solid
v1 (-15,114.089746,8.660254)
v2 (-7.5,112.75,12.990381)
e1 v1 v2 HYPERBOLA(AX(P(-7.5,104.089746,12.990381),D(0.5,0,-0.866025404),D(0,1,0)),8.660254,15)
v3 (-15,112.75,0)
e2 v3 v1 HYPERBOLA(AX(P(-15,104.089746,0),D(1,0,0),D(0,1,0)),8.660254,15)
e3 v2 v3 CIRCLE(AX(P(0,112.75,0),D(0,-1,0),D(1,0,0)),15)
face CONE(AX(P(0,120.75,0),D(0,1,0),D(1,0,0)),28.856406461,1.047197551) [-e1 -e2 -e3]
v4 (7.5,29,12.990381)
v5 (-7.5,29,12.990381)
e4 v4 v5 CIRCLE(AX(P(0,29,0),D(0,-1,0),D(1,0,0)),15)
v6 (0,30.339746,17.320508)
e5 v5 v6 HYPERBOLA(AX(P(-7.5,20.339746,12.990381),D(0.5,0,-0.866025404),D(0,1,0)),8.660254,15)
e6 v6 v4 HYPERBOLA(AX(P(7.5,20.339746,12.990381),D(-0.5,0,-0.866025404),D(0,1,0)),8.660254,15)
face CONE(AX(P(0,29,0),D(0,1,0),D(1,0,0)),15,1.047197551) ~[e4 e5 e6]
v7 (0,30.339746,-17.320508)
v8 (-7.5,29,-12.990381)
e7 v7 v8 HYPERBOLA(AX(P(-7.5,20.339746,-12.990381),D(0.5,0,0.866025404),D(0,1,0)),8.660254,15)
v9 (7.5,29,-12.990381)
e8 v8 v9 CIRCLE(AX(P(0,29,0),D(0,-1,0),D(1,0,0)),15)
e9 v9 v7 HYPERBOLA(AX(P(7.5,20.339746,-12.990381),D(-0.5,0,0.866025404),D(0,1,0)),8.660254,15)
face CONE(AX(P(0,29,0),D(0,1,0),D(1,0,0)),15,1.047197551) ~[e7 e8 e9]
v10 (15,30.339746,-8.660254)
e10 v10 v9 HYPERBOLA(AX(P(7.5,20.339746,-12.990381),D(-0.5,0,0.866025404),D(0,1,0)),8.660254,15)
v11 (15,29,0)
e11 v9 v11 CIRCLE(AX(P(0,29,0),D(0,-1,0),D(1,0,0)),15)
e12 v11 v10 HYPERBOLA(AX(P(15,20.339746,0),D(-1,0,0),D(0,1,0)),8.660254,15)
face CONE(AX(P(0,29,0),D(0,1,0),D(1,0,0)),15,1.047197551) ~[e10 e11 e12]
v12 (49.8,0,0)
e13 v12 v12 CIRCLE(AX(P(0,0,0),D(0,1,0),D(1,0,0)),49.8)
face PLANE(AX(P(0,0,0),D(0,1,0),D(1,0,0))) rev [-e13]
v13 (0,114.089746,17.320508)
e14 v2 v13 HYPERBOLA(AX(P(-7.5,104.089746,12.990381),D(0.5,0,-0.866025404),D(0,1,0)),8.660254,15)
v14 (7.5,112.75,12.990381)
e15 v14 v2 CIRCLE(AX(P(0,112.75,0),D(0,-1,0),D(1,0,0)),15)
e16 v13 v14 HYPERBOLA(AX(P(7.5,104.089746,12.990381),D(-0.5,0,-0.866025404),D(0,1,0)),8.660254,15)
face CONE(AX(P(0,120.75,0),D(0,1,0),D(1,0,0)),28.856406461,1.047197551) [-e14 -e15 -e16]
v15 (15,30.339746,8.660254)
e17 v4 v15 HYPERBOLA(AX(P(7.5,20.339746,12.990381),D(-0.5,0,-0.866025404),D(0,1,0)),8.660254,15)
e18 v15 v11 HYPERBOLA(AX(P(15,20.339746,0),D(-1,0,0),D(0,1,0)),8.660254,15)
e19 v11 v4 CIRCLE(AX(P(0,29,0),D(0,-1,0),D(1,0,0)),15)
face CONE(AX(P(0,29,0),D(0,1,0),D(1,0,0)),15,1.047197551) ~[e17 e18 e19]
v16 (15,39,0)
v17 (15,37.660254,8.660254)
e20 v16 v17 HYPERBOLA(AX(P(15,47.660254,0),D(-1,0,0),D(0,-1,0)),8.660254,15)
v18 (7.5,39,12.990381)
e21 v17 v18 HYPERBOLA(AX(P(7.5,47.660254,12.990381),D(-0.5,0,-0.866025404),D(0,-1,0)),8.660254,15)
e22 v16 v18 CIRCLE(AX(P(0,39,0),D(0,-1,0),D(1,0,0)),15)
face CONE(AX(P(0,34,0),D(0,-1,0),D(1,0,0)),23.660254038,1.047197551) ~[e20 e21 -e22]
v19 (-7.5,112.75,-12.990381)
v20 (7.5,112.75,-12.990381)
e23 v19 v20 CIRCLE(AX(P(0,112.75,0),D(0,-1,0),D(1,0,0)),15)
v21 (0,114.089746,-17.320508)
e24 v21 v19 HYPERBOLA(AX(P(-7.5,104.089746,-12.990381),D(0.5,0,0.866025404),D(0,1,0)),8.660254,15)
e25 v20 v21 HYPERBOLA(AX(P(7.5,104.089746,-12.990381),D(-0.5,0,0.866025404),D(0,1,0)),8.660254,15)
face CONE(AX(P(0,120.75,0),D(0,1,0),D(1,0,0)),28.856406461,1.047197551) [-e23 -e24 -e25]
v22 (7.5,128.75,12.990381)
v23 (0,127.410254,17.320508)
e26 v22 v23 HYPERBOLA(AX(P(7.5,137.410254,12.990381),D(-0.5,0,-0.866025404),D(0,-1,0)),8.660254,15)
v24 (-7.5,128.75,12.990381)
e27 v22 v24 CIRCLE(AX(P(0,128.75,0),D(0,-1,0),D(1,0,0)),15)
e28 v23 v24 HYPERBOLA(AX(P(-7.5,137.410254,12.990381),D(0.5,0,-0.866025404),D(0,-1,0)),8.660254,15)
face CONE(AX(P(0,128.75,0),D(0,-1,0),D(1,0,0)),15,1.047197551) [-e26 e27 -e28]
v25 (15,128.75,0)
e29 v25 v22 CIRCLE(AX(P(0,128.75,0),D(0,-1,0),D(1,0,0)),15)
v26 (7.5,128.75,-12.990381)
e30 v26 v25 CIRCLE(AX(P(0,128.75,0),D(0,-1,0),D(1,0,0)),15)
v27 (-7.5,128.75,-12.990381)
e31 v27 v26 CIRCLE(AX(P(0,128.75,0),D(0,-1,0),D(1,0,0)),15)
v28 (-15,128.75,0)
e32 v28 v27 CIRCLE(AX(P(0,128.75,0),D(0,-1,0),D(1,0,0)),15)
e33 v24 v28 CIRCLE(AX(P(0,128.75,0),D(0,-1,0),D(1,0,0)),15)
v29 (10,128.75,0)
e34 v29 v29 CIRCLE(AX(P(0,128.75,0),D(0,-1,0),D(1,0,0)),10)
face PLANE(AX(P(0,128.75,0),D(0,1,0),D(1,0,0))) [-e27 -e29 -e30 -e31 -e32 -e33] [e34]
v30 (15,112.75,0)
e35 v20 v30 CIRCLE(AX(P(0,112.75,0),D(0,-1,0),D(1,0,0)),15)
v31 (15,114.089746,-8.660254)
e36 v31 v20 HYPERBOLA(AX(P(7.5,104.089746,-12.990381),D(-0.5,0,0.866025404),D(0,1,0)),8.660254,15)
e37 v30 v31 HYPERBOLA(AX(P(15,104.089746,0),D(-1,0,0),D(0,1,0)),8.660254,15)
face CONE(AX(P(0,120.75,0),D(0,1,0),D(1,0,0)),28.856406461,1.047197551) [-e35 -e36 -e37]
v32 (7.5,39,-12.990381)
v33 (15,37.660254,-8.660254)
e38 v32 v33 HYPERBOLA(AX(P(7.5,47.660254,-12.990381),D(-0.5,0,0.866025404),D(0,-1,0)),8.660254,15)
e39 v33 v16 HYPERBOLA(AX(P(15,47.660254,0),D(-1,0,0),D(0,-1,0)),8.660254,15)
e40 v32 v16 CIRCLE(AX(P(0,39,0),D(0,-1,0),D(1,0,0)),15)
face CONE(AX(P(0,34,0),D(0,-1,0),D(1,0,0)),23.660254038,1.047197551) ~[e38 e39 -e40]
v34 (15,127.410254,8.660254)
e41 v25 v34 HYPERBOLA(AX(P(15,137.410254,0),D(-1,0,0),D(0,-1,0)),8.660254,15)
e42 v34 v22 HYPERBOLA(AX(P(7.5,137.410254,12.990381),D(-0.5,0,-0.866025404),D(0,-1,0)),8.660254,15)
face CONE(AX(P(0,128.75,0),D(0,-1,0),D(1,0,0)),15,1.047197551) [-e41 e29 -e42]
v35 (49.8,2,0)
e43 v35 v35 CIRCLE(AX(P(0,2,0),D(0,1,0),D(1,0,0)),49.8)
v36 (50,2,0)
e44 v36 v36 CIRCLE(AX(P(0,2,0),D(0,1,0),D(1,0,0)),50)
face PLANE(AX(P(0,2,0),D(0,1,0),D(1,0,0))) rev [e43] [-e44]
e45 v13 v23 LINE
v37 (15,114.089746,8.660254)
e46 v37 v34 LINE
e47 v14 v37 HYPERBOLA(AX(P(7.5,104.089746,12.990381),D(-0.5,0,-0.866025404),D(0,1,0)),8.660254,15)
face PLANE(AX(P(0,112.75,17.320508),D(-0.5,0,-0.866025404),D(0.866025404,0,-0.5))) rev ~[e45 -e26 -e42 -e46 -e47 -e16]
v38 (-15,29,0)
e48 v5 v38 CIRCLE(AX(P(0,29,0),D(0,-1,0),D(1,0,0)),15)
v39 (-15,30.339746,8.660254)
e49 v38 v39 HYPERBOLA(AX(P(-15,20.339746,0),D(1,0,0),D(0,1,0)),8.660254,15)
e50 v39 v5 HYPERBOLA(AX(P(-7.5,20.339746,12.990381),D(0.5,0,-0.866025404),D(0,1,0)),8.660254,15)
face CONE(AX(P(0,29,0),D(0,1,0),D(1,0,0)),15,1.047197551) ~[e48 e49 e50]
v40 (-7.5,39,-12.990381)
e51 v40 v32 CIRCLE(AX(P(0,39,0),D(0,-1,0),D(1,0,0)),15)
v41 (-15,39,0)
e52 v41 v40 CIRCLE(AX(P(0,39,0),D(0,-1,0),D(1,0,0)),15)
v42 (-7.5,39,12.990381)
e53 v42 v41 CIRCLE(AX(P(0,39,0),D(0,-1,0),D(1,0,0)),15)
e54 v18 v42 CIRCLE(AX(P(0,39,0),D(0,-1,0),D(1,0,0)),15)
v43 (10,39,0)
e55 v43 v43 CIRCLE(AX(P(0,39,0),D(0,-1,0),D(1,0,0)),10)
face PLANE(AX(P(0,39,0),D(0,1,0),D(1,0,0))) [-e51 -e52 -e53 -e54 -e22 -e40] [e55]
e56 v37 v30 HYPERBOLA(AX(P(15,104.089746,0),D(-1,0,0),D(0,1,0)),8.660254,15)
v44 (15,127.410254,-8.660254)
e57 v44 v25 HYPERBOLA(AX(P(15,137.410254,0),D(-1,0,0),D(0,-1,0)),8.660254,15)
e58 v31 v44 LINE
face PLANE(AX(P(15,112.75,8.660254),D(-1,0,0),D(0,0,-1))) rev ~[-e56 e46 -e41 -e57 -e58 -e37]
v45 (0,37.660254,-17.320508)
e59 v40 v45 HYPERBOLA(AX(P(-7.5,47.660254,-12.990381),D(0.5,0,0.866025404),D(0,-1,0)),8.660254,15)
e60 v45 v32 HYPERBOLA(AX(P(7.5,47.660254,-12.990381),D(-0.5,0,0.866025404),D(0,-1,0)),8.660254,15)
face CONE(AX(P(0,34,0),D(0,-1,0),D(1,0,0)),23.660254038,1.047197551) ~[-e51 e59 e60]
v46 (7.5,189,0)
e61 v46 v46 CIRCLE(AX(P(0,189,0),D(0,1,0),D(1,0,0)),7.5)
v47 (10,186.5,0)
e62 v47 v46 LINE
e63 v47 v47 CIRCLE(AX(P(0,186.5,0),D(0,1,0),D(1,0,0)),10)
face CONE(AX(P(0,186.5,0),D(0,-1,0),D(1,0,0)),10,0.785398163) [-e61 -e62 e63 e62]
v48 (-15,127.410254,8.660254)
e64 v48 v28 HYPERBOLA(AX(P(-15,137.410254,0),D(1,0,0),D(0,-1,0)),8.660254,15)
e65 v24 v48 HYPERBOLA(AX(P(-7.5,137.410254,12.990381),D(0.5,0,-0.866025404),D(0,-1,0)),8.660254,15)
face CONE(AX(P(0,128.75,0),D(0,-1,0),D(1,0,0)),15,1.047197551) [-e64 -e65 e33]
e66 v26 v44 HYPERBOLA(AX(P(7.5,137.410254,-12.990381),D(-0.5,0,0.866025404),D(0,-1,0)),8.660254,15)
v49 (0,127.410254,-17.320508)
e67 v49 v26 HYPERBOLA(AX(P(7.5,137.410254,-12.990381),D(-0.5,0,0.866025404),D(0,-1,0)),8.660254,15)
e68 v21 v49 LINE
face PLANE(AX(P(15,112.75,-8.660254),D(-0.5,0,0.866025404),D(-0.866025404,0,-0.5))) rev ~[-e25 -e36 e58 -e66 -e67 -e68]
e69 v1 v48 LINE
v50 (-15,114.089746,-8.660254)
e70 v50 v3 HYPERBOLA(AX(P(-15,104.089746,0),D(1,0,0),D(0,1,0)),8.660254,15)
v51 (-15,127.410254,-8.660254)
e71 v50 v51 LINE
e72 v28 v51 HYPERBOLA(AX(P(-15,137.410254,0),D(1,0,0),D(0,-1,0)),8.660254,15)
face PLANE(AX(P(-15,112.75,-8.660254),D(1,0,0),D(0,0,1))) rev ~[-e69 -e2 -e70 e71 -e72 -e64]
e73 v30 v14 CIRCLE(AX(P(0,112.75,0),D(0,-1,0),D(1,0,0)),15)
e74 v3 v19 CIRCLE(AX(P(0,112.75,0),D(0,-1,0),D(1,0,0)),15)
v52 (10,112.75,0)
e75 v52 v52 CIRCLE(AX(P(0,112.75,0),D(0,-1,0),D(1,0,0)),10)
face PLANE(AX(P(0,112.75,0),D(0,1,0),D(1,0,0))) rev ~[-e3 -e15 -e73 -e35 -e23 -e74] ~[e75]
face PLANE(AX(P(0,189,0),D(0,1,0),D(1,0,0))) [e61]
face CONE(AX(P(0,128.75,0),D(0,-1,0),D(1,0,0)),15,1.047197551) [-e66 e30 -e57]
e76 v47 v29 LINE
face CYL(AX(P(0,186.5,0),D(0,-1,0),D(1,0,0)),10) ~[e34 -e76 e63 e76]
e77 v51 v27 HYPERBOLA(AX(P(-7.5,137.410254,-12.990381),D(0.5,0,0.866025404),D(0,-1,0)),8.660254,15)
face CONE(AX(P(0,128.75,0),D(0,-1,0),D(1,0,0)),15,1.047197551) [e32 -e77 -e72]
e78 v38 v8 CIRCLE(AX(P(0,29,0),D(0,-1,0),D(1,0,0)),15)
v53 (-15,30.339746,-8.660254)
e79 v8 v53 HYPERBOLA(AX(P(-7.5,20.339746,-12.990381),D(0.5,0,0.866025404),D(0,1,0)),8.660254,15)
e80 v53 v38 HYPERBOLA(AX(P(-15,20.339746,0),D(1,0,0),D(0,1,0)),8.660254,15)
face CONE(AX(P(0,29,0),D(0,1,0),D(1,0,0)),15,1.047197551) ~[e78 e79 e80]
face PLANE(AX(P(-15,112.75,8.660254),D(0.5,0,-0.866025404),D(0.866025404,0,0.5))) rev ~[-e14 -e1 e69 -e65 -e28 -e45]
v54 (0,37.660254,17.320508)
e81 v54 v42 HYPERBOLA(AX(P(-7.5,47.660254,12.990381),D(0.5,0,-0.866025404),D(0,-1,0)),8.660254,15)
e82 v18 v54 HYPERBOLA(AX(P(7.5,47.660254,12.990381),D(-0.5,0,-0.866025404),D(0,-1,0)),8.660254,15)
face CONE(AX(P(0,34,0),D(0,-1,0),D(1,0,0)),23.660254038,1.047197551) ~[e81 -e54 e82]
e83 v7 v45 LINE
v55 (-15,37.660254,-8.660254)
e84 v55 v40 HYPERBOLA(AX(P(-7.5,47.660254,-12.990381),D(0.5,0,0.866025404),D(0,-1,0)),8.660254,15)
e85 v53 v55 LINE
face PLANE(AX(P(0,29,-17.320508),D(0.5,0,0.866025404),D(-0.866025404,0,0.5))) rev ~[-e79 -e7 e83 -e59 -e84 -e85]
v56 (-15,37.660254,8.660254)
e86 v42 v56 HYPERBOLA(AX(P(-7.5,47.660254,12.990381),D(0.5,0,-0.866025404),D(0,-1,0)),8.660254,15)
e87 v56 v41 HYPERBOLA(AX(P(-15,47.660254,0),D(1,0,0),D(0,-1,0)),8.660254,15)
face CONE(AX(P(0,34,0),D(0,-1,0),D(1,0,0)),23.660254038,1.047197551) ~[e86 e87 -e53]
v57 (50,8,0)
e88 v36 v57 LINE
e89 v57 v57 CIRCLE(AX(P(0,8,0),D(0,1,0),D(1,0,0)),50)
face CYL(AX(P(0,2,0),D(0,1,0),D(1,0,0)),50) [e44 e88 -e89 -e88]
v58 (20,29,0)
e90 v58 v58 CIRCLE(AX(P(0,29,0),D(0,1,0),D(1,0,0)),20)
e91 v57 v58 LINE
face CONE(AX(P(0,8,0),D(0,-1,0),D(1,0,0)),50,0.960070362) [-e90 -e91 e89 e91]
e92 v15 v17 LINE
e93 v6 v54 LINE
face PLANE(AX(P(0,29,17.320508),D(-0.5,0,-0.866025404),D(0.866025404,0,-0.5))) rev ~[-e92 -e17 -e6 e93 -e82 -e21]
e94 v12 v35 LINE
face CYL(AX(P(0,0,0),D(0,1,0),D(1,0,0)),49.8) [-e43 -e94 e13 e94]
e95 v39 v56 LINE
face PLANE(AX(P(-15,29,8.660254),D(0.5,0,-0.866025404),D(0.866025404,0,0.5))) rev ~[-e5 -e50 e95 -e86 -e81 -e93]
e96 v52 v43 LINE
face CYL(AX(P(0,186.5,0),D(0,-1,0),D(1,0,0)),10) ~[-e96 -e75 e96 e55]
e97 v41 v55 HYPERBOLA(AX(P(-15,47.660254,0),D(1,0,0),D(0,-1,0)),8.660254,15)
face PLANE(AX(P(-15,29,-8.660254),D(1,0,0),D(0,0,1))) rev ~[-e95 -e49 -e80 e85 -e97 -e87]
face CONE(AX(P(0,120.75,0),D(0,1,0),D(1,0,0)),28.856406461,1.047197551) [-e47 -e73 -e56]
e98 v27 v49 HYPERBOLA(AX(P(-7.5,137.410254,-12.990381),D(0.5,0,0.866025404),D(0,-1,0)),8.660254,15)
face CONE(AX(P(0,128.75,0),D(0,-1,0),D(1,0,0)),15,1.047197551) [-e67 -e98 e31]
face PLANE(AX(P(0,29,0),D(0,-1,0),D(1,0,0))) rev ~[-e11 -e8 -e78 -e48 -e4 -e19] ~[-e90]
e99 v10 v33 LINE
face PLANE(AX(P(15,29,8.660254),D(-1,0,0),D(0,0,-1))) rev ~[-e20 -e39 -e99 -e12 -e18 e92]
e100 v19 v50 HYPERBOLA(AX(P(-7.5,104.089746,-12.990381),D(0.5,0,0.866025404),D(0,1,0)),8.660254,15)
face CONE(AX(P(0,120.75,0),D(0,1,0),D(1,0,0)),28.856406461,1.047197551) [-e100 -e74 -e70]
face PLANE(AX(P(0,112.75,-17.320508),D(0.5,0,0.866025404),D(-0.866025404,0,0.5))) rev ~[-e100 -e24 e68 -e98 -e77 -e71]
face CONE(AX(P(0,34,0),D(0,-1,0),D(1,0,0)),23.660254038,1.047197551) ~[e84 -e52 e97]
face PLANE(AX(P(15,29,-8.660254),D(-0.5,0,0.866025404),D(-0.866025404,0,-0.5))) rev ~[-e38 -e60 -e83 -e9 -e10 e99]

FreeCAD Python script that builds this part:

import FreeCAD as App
import Part
import Sketcher

V = App.Vector
Q = App.Units.Quantity

doc = App.newDocument("Part")
body = doc.addObject("PartDesign::Body", "Body")

# Sketch on XY plane
sketch1 = doc.addObject("Sketcher::SketchObject", "Sketch")
body.addObject(sketch1)
sketch1.AttachmentSupport = (doc.XY_Plane, [""])
sketch1.MapMode = "FlatFace"
sketch1.addGeometry([
    Part.LineSegment(V(-49.8, 0, 0), V(0, 0, 0)),  # 0
    Part.LineSegment(V(0, 0, 0), V(0, 189, 0)),  # 1
    Part.LineSegment(V(0, 189, 0), V(-7.5, 189, 0)),  # 2
    Part.LineSegment(V(-7.5, 189, 0), V(-10, 186.5, 0)),  # 3
    Part.LineSegment(V(-10, 186.5, 0), V(-10, 29, 0)),  # 4
    Part.LineSegment(V(-10, 29, 0), V(-20, 29, 0)),  # 5
    Part.LineSegment(V(-20, 29, 0), V(-50, 8, 0)),  # 6
    Part.LineSegment(V(-50, 8, 0), V(-50, 2, 0)),  # 7
    Part.LineSegment(V(-50, 2, 0), V(-49.8, 2, 0)),  # 8
    Part.LineSegment(V(-49.8, 2, 0), V(-49.8, 0, 0)),  # 9
], False)
sketch1.addConstraint([
    Sketcher.Constraint("Coincident", 0, 2, 1, 1),
    Sketcher.Constraint("Coincident", 1, 2, 2, 1),
    Sketcher.Constraint("Coincident", 2, 2, 3, 1),
    Sketcher.Constraint("Coincident", 3, 2, 4, 1),
    Sketcher.Constraint("Coincident", 4, 2, 5, 1),
    Sketcher.Constraint("Coincident", 5, 2, 6, 1),
    Sketcher.Constraint("Coincident", 6, 2, 7, 1),
    Sketcher.Constraint("Coincident", 7, 2, 8, 1),
    Sketcher.Constraint("Coincident", 8, 2, 9, 1),
    Sketcher.Constraint("Coincident", 9, 2, 0, 1),
    Sketcher.Constraint("Horizontal", 0),
    Sketcher.Constraint("Vertical", 1),
    Sketcher.Constraint("Horizontal", 2),
    Sketcher.Constraint("Vertical", 4),
    Sketcher.Constraint("Horizontal", 5),
    Sketcher.Constraint("Vertical", 7),
    Sketcher.Constraint("Horizontal", 8),
    Sketcher.Constraint("Vertical", 9),
    Sketcher.Constraint("Coincident", 0, 2, -1, 1),
    Sketcher.Constraint("DistanceX", 5, 2, 5, 1, Q("10 mm")),
    Sketcher.Constraint("DistanceY", 1, 1, 1, 2, Q("189 mm")),
    Sketcher.Constraint("DistanceY", 7, 2, 7, 1, Q("6 mm")),
    Sketcher.Constraint("DistanceY", 9, 2, 9, 1, Q("2 mm")),
    Sketcher.Constraint("Angle", 3, Q("-135 deg")),
    Sketcher.Constraint("DistanceX", 0, 1, 0, 2, Q("49.8 mm")),
    Sketcher.Constraint("DistanceX", 2, 2, 2, 1, Q("7.5 mm")),
    Sketcher.Constraint("DistanceX", 8, 1, 8, 2, Q("0.2 mm")),
    Sketcher.Constraint("DistanceY", 4, 2, 4, 1, Q("157.5 mm")),
    Sketcher.Constraint("DistanceX", 3, 2, -1, 1, Q("10 mm")),
])
revolution = doc.addObject("PartDesign::Revolution", "Revolution")
body.addObject(revolution)
revolution.Profile = sketch1
revolution.ReferenceAxis = (sketch1, ["V_Axis"])
revolution.Angle = 360

# Sketch on XZ plane
sketch2 = doc.addObject("Sketcher::SketchObject", "Sketch001")
body.addObject(sketch2)
sketch2.AttachmentSupport = (doc.XZ_Plane, [""])
sketch2.MapMode = "FlatFace"
sketch2.AttachmentOffset = App.Placement(V(0, 0, -29), App.Rotation())
sketch2.addGeometry([
    Part.LineSegment(V(0, -17.320508, 0), V(-15, -8.660254, 0)),  # 0
    Part.LineSegment(V(-15, -8.660254, 0), V(-15, 8.660254, 0)),  # 1
    Part.LineSegment(V(-15, 8.660254, 0), V(0, 17.320508, 0)),  # 2
    Part.LineSegment(V(0, 17.320508, 0), V(15, 8.660254, 0)),  # 3
    Part.LineSegment(V(15, 8.660254, 0), V(15, -8.660254, 0)),  # 4
    Part.LineSegment(V(15, -8.660254, 0), V(0, -17.320508, 0)),  # 5
], False)
sketch2.addConstraint([
    Sketcher.Constraint("Coincident", 0, 2, 1, 1),
    Sketcher.Constraint("Coincident", 1, 2, 2, 1),
    Sketcher.Constraint("Coincident", 2, 2, 3, 1),
    Sketcher.Constraint("Coincident", 3, 2, 4, 1),
    Sketcher.Constraint("Coincident", 4, 2, 5, 1),
    Sketcher.Constraint("Coincident", 5, 2, 0, 1),
    Sketcher.Constraint("Vertical", 1),
    Sketcher.Constraint("Vertical", 4),
    Sketcher.Constraint("Symmetric", 0, 2, 3, 2, -1, 1),
    Sketcher.Constraint("Symmetric", 2, 2, 5, 2, -1, 1),
    Sketcher.Constraint("PointOnObject", 2, 2, -2),
    Sketcher.Constraint("Parallel", 2, 5),
    Sketcher.Constraint("Horizontal", 1, 2, 3, 2),
    Sketcher.Constraint("Angle", 0, Q("150 deg")),
    Sketcher.Constraint("DistanceX", 0, 2, -1, 1, Q("15 mm")),
    Sketcher.Constraint("DistanceY", 1, 1, 1, 2, Q("17.320508 mm")),
])
pad1 = doc.addObject("PartDesign::Pad", "Pad")
body.addObject(pad1)
pad1.Profile = sketch2
pad1.Length = 10
pad1.Reversed = True

# Sketch on XZ plane
sketch3 = doc.addObject("Sketcher::SketchObject", "Sketch002")
body.addObject(sketch3)
sketch3.AttachmentSupport = (doc.XZ_Plane, [""])
sketch3.MapMode = "FlatFace"
sketch3.AttachmentOffset = App.Placement(V(0, 0, -112.75), App.Rotation())
sketch3.addGeometry([
    Part.LineSegment(V(15, -8.660254, 0), V(0, -17.320508, 0)),  # 0
    Part.LineSegment(V(0, -17.320508, 0), V(-15, -8.660254, 0)),  # 1
    Part.LineSegment(V(-15, -8.660254, 0), V(-15, 8.660254, 0)),  # 2
    Part.LineSegment(V(-15, 8.660254, 0), V(0, 17.320508, 0)),  # 3
    Part.LineSegment(V(0, 17.320508, 0), V(15, 8.660254, 0)),  # 4
    Part.LineSegment(V(15, 8.660254, 0), V(15, -8.660254, 0)),  # 5
], False)
sketch3.addConstraint([
    Sketcher.Constraint("Coincident", 0, 2, 1, 1),
    Sketcher.Constraint("Coincident", 1, 2, 2, 1),
    Sketcher.Constraint("Coincident", 2, 2, 3, 1),
    Sketcher.Constraint("Coincident", 3, 2, 4, 1),
    Sketcher.Constraint("Coincident", 4, 2, 5, 1),
    Sketcher.Constraint("Coincident", 5, 2, 0, 1),
    Sketcher.Constraint("Vertical", 2),
    Sketcher.Constraint("Vertical", 5),
    Sketcher.Constraint("Symmetric", 0, 2, 3, 2, -1, 1),
    Sketcher.Constraint("Symmetric", 1, 2, 4, 2, -1, 1),
    Sketcher.Constraint("PointOnObject", 0, 2, -2),
    Sketcher.Constraint("Parallel", 0, 3),
    Sketcher.Constraint("Horizontal", 2, 2, 4, 2),
    Sketcher.Constraint("Angle", 0, Q("-150 deg")),
    Sketcher.Constraint("DistanceX", 1, 2, -1, 1, Q("15 mm")),
    Sketcher.Constraint("DistanceY", 2, 1, 2, 2, Q("17.320508 mm")),
])
pad2 = doc.addObject("PartDesign::Pad", "Pad001")
body.addObject(pad2)
pad2.Profile = sketch3
pad2.Length = 16
pad2.Reversed = True

# Sketch on XY plane
sketch4 = doc.addObject("Sketcher::SketchObject", "Sketch003")
body.addObject(sketch4)
sketch4.AttachmentSupport = (doc.XY_Plane, [""])
sketch4.MapMode = "FlatFace"
sketch4.addGeometry([
    Part.LineSegment(V(-15, 128.75, 0), V(-28.856406, 128.75, 0)),  # 0
    Part.LineSegment(V(-28.856406, 128.75, 0), V(-28.856406, 120.75, 0)),  # 1
    Part.LineSegment(V(-28.856406, 120.75, 0), V(-15, 128.75, 0)),  # 2
    Part.LineSegment(V(-28.856406, 120.75, 0), V(-28.856406, 112.75, 0)),  # 3
    Part.LineSegment(V(-28.856406, 112.75, 0), V(-15, 112.75, 0)),  # 4
    Part.LineSegment(V(-15, 112.75, 0), V(-28.856406, 120.75, 0)),  # 5
    Part.LineSegment(V(-23.660254, 39, 0), V(-23.660254, 34, 0)),  # 6
    Part.LineSegment(V(-23.660254, 34, 0), V(-15, 39, 0)),  # 7
    Part.LineSegment(V(-15, 39, 0), V(-23.660254, 39, 0)),  # 8
    Part.LineSegment(V(-23.660254, 34, 0), V(-23.660254, 29, 0)),  # 9
    Part.LineSegment(V(-23.660254, 29, 0), V(-15, 29, 0)),  # 10
    Part.LineSegment(V(-15, 29, 0), V(-23.660254, 34, 0)),  # 11
], False)
sketch4.addConstraint([
    Sketcher.Constraint("Coincident", 0, 2, 1, 1),
    Sketcher.Constraint("Coincident", 1, 2, 2, 1),
    Sketcher.Constraint("Coincident", 2, 2, 0, 1),
    Sketcher.Constraint("Coincident", 3, 2, 4, 1),
    Sketcher.Constraint("Coincident", 4, 2, 5, 1),
    Sketcher.Constraint("Coincident", 5, 2, 3, 1),
    Sketcher.Constraint("Coincident", 6, 2, 7, 1),
    Sketcher.Constraint("Coincident", 7, 2, 8, 1),
    Sketcher.Constraint("Coincident", 8, 2, 6, 1),
    Sketcher.Constraint("Coincident", 9, 2, 10, 1),
    Sketcher.Constraint("Coincident", 10, 2, 11, 1),
    Sketcher.Constraint("Coincident", 11, 2, 9, 1),
    Sketcher.Constraint("Horizontal", 0),
    Sketcher.Constraint("Vertical", 1),
    Sketcher.Constraint("Vertical", 3),
    Sketcher.Constraint("Horizontal", 4),
    Sketcher.Constraint("Vertical", 6),
    Sketcher.Constraint("Horizontal", 8),
    Sketcher.Constraint("Vertical", 9),
    Sketcher.Constraint("Horizontal", 10),
    Sketcher.Constraint("Coincident", 5, 2, 1, 2),
    Sketcher.Constraint("Coincident", 11, 2, 6, 2),
    Sketcher.Constraint("Parallel", 2, 7),
    Sketcher.Constraint("Parallel", 5, 11),
    Sketcher.Constraint("Vertical", 2, 2, 4, 2),
    Sketcher.Constraint("Vertical", 4, 2, 7, 2),
    Sketcher.Constraint("Vertical", 7, 2, 10, 2),
    Sketcher.Constraint("Equal", 1, 3),
    Sketcher.Constraint("DistanceY", 1, 2, 1, 1, Q("8 mm")),
    Sketcher.Constraint("DistanceY", 6, 2, 6, 1, Q("5 mm")),
    Sketcher.Constraint("Angle", 2, Q("30 deg")),
    Sketcher.Constraint("DistanceX", 2, 2, -1, 1, Q("15 mm")),
    Sketcher.Constraint("DistanceY", -1, 1, 6, 2, Q("34 mm")),
    Sketcher.Constraint("DistanceY", -1, 1, 0, 2, Q("128.75 mm")),
])
groove = doc.addObject("PartDesign::Groove", "Groove")
body.addObject(groove)
groove.Profile = sketch4
groove.ReferenceAxis = (sketch4, ["V_Axis"])
groove.Angle = 360

doc.recompute()
